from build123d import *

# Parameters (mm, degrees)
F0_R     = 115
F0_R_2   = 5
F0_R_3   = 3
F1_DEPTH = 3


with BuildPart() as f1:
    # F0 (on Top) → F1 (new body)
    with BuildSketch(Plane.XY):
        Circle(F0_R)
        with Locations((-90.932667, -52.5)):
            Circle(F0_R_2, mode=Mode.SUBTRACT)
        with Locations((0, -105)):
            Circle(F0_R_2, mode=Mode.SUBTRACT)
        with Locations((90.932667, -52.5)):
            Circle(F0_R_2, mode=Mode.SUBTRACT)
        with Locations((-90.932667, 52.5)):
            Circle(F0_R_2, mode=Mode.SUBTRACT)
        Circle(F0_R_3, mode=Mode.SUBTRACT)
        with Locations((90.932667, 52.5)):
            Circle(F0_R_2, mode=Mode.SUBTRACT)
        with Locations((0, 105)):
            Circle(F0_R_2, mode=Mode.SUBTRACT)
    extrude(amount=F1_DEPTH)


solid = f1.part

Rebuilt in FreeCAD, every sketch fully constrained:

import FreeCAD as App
import Part
import Sketcher
from FreeCAD import Vector

doc = App.newDocument("Part")
body = doc.addObject("PartDesign::Body", "Body")

sketch1 = body.newObject("Sketcher::SketchObject", "Sketch")
sketch1.AttachmentSupport = (doc.getObject("XY_Plane"), [""])
sketch1.MapMode = "FlatFace"
sketch1.addGeometry([
    Part.Circle(Vector(0, 0, 0), Vector(0, 0, 1), 115),
    Part.Circle(Vector(-90.9, -52.5, 0), Vector(0, 0, 1), 5),
    Part.Circle(Vector(0, -105, 0), Vector(0, 0, 1), 5),
    Part.Circle(Vector(90.9, -52.5, 0), Vector(0, 0, 1), 5),
    Part.Circle(Vector(-90.9, 52.5, 0), Vector(0, 0, 1), 5),
    Part.Circle(Vector(0, 0, 0), Vector(0, 0, 1), 3),
    Part.Circle(Vector(90.9, 52.5, 0), Vector(0, 0, 1), 5),
    Part.Circle(Vector(0, 105, 0), Vector(0, 0, 1), 5),
], False)
sketch1.addConstraint([
    Sketcher.Constraint("Coincident", 0, 3, -1, 1),
    Sketcher.Constraint("Coincident", 5, 3, -1, 1),
    Sketcher.Constraint("Equal", 1, 2),
    Sketcher.Constraint("Equal", 2, 3),
    Sketcher.Constraint("Equal", 3, 4),
    Sketcher.Constraint("Equal", 4, 6),
    Sketcher.Constraint("Equal", 6, 7),
    Sketcher.Constraint("Symmetric", 3, 3, 4, 3, -1, 1),
    Sketcher.Constraint("Symmetric", 1, 3, 6, 3, -1, 1),
    Sketcher.Constraint("Symmetric", 2, 3, 7, 3, -1, 1),
    Sketcher.Constraint("Symmetric", 1, 3, 3, 3, -2),
    Sketcher.Constraint("PointOnObject", 2, 3, -2),
    Sketcher.Constraint("Diameter", 0, 230.0),
    Sketcher.Constraint("Diameter", 1, 10.0),
    Sketcher.Constraint("Diameter", 5, 6.0),
    Sketcher.Constraint("DistanceY", 2, 3, -1, 1, 105.0),
    Sketcher.Constraint("DistanceY", 1, 3, 4, 3, 105.0),
    Sketcher.Constraint("DistanceX", 1, 3, -1, 1, 90.932667),
])
pad1 = body.newObject("PartDesign::Pad", "Pad")
pad1.Profile = sketch1
pad1.Length = 3

doc.recompute()
